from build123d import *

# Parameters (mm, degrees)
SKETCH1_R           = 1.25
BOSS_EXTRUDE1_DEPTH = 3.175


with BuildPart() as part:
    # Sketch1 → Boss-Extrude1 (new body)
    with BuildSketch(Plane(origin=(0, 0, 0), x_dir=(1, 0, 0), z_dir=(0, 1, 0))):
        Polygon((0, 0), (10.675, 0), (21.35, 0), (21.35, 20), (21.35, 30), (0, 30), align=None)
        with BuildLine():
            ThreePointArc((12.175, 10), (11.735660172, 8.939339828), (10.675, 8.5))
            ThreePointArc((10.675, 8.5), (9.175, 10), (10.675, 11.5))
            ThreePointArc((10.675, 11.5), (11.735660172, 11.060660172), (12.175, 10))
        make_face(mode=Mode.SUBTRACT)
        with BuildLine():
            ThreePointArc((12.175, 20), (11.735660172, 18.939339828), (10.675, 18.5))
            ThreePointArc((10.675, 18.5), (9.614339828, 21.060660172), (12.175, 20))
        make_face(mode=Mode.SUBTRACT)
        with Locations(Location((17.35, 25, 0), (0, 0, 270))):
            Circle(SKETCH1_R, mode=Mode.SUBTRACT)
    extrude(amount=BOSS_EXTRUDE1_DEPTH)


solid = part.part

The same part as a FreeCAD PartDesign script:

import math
import FreeCAD as App
import Part
import Sketcher
from FreeCAD import Vector


def add_polygon(sketch, points):
    """Adds a closed chain of lines whose ends are joined by coincident constraints."""
    first, n = sketch.GeometryCount, len(points)
    for a, b in zip(points, points[1:] + points[:1]):
        sketch.addGeometry(Part.LineSegment(App.Vector(*a, 0), App.Vector(*b, 0)), False)
    for i in range(n):
        sketch.addConstraint(Sketcher.Constraint("Coincident", first + i, 2, first + (i + 1) % n, 1))

doc = App.newDocument("Part")
body = doc.addObject("PartDesign::Body", "Body")

# Sketch on XZ plane
sketch1 = body.newObject("Sketcher::SketchObject", "Sketch")
sketch1.AttachmentSupport = (doc.getObject("XZ_Plane"), [""])
sketch1.MapMode = "FlatFace"
add_polygon(sketch1, [(0, 0), (21.35, 0), (21.35, -30), (0, -30)])  # lines 0-3
sketch1.addGeometry(Part.ArcOfCircle(Part.Circle(Vector(10.675, -10, 0), Vector(0, 0, 1), 1.5), math.radians(-90), math.radians(0)), False)  # 4
sketch1.addGeometry(Part.ArcOfCircle(Part.Circle(Vector(10.675, -10, 0), Vector(0, 0, 1), 1.5), math.radians(0), math.radians(90)), False)  # 5
sketch1.addGeometry(Part.ArcOfCircle(Part.Circle(Vector(10.675, -10, 0), Vector(0, 0, 1), 1.5), math.radians(90), math.radians(270)), False)  # 6
sketch1.addGeometry(Part.ArcOfCircle(Part.Circle(Vector(10.675, -20, 0), Vector(0, 0, 1), 1.5), math.radians(90), math.radians(360)), False)  # 7
sketch1.addGeometry(Part.ArcOfCircle(Part.Circle(Vector(10.675, -20, 0), Vector(0, 0, 1), 1.5), math.radians(0), math.radians(90)), False)  # 8
sketch1.addGeometry(Part.Circle(Vector(17.35, -25, 0), Vector(0, 0, 1), 1.25), False)  # 9
sketch1.addConstraint([
    Sketcher.Constraint("Tangent", 4, 2, 5, 1),
    Sketcher.Constraint("Tangent", 5, 2, 6, 1),
    Sketcher.Constraint("Tangent", 6, 2, 4, 1),
    Sketcher.Constraint("Tangent", 7, 1, 8, 2),
    Sketcher.Constraint("Coincident", 8, 1, 7, 2),
    Sketcher.Constraint("Horizontal", 0),
    Sketcher.Constraint("Vertical", 1),
    Sketcher.Constraint("Horizontal", 2),
    Sketcher.Constraint("Vertical", 3),
    Sketcher.Constraint("Coincident", 3, 2, -1, 1),
    Sketcher.Constraint("Equal", 6, 7),
    Sketcher.Constraint("Horizontal", 6, 3, 4, 2),
    Sketcher.Constraint("Horizontal", 7, 3, 8, 1),
    Sketcher.Constraint("Vertical", 6, 3, 7, 3),
    Sketcher.Constraint("Vertical", 8, 3, 5, 2),
    Sketcher.Constraint("Vertical", 5, 2, 6, 2),
    Sketcher.Constraint("Vertical", 6, 2, 7, 1),
    Sketcher.Constraint("Diameter", 9, 2.5),
    Sketcher.Constraint("Radius", 4, 1.5),
    Sketcher.Constraint("DistanceY", 1, 2, 1, 1, 30.0),
    Sketcher.Constraint("DistanceY", 4, 3, -1, 1, 10.0),
    Sketcher.Constraint("DistanceY", 7, 3, -1, 1, 20.0),
    Sketcher.Constraint("DistanceY", 9, 3, -1, 1, 25.0),
    Sketcher.Constraint("DistanceX", 9, 3, 1, 2, 4.0),
    Sketcher.Constraint("DistanceX", 0, 1, 0, 2, 21.35),
    Sketcher.Constraint("DistanceX", -1, 1, 4, 3, 10.675),
])
pad1 = body.newObject("PartDesign::Pad", "Pad")
pad1.Profile = sketch1
pad1.Length = 3.175
pad1.Reversed = True

doc.recompute()
